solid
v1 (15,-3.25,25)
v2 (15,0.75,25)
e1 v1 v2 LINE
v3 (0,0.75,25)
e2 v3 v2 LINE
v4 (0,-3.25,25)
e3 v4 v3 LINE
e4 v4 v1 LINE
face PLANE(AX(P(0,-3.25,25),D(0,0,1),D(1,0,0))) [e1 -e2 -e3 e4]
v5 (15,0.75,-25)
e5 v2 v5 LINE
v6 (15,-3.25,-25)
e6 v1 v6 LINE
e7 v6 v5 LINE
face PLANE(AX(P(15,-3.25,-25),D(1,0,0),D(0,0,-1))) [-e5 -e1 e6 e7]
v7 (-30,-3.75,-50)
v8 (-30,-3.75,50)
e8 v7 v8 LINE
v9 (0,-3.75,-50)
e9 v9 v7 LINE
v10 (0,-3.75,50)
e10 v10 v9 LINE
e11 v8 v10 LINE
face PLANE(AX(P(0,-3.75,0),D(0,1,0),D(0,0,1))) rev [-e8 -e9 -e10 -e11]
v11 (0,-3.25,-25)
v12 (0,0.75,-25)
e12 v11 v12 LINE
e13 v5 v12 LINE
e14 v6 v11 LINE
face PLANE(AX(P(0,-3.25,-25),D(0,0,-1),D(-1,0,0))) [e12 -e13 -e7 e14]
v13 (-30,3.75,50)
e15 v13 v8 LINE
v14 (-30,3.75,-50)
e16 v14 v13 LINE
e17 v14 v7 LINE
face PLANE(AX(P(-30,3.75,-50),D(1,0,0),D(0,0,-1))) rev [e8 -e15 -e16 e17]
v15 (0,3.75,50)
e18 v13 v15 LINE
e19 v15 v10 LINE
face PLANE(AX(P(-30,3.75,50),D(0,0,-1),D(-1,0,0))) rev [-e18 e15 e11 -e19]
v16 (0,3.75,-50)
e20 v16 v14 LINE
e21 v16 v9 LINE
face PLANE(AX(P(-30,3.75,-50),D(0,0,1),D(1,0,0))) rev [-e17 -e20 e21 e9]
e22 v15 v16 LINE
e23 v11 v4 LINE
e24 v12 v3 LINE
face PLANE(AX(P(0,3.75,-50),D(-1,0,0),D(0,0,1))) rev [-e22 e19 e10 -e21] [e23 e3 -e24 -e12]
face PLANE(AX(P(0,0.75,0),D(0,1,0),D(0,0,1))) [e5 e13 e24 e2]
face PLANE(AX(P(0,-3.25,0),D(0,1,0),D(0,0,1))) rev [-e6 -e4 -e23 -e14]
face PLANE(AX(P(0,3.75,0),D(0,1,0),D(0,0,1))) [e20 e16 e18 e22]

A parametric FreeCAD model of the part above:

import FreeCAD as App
import Part
import Sketcher
Q = App.Units.Quantity


def add_polygon(sketch, points):
    """Adds a closed chain of lines whose ends are joined by coincident constraints."""
    first, n = sketch.GeometryCount, len(points)
    for a, b in zip(points, points[1:] + points[:1]):
        sketch.addGeometry(Part.LineSegment(App.Vector(*a, 0), App.Vector(*b, 0)), False)
    for i in range(n):
        sketch.addConstraint(Sketcher.Constraint("Coincident", first + i, 2, first + (i + 1) % n, 1))

doc = App.newDocument("Part")
body = doc.addObject("PartDesign::Body", "Body")

# Sketch on XZ plane
sketch1 = body.newObject("Sketcher::SketchObject", "Sketch")
sketch1.AttachmentSupport = (doc.getObject("XZ_Plane"), [""])
sketch1.MapMode = "FlatFace"
add_polygon(sketch1, [(-30, -50), (-30, 50), (0, 50), (0, -50)])  # lines 0-3
sketch1.addConstraint([
    Sketcher.Constraint("Vertical", 0),
    Sketcher.Constraint("Horizontal", 1),
    Sketcher.Constraint("Vertical", 2),
    Sketcher.Constraint("Horizontal", 3),
    Sketcher.Constraint("Symmetric", 1, 2, 2, 2, -1, 1),
    Sketcher.Constraint("DistanceX", 1, 1, 1, 2, Q("30 mm")),
    Sketcher.Constraint("DistanceY", 0, 1, 0, 2, Q("100 mm")),
])
pad1 = body.newObject("PartDesign::Pad", "Pad")
pad1.Profile = sketch1
pad1.Length = 7.5
pad1.Midplane = True

# Sketch on XZ plane
sketch2 = body.newObject("Sketcher::SketchObject", "Sketch001")
sketch2.AttachmentSupport = (doc.getObject("XZ_Plane"), [""])
sketch2.MapMode = "FlatFace"
sketch2.AttachmentOffset = App.Placement(App.Vector(0, 0, -0.75), App.Rotation())
add_polygon(sketch2, [(0, -25), (0, 25), (15, 25), (15, -25)])  # lines 0-3
sketch2.addConstraint([
    Sketcher.Constraint("Vertical", 0),
    Sketcher.Constraint("Horizontal", 1),
    Sketcher.Constraint("Vertical", 2),
    Sketcher.Constraint("Horizontal", 3),
    Sketcher.Constraint("Symmetric", 0, 2, 3, 2, -1, 1),
    Sketcher.Constraint("DistanceX", 1, 1, 1, 2, Q("15 mm")),
    Sketcher.Constraint("DistanceY", 0, 1, 0, 2, Q("50 mm")),
])
pad2 = body.newObject("PartDesign::Pad", "Pad001")
pad2.Profile = sketch2
pad2.Length = 4

doc.recompute()
